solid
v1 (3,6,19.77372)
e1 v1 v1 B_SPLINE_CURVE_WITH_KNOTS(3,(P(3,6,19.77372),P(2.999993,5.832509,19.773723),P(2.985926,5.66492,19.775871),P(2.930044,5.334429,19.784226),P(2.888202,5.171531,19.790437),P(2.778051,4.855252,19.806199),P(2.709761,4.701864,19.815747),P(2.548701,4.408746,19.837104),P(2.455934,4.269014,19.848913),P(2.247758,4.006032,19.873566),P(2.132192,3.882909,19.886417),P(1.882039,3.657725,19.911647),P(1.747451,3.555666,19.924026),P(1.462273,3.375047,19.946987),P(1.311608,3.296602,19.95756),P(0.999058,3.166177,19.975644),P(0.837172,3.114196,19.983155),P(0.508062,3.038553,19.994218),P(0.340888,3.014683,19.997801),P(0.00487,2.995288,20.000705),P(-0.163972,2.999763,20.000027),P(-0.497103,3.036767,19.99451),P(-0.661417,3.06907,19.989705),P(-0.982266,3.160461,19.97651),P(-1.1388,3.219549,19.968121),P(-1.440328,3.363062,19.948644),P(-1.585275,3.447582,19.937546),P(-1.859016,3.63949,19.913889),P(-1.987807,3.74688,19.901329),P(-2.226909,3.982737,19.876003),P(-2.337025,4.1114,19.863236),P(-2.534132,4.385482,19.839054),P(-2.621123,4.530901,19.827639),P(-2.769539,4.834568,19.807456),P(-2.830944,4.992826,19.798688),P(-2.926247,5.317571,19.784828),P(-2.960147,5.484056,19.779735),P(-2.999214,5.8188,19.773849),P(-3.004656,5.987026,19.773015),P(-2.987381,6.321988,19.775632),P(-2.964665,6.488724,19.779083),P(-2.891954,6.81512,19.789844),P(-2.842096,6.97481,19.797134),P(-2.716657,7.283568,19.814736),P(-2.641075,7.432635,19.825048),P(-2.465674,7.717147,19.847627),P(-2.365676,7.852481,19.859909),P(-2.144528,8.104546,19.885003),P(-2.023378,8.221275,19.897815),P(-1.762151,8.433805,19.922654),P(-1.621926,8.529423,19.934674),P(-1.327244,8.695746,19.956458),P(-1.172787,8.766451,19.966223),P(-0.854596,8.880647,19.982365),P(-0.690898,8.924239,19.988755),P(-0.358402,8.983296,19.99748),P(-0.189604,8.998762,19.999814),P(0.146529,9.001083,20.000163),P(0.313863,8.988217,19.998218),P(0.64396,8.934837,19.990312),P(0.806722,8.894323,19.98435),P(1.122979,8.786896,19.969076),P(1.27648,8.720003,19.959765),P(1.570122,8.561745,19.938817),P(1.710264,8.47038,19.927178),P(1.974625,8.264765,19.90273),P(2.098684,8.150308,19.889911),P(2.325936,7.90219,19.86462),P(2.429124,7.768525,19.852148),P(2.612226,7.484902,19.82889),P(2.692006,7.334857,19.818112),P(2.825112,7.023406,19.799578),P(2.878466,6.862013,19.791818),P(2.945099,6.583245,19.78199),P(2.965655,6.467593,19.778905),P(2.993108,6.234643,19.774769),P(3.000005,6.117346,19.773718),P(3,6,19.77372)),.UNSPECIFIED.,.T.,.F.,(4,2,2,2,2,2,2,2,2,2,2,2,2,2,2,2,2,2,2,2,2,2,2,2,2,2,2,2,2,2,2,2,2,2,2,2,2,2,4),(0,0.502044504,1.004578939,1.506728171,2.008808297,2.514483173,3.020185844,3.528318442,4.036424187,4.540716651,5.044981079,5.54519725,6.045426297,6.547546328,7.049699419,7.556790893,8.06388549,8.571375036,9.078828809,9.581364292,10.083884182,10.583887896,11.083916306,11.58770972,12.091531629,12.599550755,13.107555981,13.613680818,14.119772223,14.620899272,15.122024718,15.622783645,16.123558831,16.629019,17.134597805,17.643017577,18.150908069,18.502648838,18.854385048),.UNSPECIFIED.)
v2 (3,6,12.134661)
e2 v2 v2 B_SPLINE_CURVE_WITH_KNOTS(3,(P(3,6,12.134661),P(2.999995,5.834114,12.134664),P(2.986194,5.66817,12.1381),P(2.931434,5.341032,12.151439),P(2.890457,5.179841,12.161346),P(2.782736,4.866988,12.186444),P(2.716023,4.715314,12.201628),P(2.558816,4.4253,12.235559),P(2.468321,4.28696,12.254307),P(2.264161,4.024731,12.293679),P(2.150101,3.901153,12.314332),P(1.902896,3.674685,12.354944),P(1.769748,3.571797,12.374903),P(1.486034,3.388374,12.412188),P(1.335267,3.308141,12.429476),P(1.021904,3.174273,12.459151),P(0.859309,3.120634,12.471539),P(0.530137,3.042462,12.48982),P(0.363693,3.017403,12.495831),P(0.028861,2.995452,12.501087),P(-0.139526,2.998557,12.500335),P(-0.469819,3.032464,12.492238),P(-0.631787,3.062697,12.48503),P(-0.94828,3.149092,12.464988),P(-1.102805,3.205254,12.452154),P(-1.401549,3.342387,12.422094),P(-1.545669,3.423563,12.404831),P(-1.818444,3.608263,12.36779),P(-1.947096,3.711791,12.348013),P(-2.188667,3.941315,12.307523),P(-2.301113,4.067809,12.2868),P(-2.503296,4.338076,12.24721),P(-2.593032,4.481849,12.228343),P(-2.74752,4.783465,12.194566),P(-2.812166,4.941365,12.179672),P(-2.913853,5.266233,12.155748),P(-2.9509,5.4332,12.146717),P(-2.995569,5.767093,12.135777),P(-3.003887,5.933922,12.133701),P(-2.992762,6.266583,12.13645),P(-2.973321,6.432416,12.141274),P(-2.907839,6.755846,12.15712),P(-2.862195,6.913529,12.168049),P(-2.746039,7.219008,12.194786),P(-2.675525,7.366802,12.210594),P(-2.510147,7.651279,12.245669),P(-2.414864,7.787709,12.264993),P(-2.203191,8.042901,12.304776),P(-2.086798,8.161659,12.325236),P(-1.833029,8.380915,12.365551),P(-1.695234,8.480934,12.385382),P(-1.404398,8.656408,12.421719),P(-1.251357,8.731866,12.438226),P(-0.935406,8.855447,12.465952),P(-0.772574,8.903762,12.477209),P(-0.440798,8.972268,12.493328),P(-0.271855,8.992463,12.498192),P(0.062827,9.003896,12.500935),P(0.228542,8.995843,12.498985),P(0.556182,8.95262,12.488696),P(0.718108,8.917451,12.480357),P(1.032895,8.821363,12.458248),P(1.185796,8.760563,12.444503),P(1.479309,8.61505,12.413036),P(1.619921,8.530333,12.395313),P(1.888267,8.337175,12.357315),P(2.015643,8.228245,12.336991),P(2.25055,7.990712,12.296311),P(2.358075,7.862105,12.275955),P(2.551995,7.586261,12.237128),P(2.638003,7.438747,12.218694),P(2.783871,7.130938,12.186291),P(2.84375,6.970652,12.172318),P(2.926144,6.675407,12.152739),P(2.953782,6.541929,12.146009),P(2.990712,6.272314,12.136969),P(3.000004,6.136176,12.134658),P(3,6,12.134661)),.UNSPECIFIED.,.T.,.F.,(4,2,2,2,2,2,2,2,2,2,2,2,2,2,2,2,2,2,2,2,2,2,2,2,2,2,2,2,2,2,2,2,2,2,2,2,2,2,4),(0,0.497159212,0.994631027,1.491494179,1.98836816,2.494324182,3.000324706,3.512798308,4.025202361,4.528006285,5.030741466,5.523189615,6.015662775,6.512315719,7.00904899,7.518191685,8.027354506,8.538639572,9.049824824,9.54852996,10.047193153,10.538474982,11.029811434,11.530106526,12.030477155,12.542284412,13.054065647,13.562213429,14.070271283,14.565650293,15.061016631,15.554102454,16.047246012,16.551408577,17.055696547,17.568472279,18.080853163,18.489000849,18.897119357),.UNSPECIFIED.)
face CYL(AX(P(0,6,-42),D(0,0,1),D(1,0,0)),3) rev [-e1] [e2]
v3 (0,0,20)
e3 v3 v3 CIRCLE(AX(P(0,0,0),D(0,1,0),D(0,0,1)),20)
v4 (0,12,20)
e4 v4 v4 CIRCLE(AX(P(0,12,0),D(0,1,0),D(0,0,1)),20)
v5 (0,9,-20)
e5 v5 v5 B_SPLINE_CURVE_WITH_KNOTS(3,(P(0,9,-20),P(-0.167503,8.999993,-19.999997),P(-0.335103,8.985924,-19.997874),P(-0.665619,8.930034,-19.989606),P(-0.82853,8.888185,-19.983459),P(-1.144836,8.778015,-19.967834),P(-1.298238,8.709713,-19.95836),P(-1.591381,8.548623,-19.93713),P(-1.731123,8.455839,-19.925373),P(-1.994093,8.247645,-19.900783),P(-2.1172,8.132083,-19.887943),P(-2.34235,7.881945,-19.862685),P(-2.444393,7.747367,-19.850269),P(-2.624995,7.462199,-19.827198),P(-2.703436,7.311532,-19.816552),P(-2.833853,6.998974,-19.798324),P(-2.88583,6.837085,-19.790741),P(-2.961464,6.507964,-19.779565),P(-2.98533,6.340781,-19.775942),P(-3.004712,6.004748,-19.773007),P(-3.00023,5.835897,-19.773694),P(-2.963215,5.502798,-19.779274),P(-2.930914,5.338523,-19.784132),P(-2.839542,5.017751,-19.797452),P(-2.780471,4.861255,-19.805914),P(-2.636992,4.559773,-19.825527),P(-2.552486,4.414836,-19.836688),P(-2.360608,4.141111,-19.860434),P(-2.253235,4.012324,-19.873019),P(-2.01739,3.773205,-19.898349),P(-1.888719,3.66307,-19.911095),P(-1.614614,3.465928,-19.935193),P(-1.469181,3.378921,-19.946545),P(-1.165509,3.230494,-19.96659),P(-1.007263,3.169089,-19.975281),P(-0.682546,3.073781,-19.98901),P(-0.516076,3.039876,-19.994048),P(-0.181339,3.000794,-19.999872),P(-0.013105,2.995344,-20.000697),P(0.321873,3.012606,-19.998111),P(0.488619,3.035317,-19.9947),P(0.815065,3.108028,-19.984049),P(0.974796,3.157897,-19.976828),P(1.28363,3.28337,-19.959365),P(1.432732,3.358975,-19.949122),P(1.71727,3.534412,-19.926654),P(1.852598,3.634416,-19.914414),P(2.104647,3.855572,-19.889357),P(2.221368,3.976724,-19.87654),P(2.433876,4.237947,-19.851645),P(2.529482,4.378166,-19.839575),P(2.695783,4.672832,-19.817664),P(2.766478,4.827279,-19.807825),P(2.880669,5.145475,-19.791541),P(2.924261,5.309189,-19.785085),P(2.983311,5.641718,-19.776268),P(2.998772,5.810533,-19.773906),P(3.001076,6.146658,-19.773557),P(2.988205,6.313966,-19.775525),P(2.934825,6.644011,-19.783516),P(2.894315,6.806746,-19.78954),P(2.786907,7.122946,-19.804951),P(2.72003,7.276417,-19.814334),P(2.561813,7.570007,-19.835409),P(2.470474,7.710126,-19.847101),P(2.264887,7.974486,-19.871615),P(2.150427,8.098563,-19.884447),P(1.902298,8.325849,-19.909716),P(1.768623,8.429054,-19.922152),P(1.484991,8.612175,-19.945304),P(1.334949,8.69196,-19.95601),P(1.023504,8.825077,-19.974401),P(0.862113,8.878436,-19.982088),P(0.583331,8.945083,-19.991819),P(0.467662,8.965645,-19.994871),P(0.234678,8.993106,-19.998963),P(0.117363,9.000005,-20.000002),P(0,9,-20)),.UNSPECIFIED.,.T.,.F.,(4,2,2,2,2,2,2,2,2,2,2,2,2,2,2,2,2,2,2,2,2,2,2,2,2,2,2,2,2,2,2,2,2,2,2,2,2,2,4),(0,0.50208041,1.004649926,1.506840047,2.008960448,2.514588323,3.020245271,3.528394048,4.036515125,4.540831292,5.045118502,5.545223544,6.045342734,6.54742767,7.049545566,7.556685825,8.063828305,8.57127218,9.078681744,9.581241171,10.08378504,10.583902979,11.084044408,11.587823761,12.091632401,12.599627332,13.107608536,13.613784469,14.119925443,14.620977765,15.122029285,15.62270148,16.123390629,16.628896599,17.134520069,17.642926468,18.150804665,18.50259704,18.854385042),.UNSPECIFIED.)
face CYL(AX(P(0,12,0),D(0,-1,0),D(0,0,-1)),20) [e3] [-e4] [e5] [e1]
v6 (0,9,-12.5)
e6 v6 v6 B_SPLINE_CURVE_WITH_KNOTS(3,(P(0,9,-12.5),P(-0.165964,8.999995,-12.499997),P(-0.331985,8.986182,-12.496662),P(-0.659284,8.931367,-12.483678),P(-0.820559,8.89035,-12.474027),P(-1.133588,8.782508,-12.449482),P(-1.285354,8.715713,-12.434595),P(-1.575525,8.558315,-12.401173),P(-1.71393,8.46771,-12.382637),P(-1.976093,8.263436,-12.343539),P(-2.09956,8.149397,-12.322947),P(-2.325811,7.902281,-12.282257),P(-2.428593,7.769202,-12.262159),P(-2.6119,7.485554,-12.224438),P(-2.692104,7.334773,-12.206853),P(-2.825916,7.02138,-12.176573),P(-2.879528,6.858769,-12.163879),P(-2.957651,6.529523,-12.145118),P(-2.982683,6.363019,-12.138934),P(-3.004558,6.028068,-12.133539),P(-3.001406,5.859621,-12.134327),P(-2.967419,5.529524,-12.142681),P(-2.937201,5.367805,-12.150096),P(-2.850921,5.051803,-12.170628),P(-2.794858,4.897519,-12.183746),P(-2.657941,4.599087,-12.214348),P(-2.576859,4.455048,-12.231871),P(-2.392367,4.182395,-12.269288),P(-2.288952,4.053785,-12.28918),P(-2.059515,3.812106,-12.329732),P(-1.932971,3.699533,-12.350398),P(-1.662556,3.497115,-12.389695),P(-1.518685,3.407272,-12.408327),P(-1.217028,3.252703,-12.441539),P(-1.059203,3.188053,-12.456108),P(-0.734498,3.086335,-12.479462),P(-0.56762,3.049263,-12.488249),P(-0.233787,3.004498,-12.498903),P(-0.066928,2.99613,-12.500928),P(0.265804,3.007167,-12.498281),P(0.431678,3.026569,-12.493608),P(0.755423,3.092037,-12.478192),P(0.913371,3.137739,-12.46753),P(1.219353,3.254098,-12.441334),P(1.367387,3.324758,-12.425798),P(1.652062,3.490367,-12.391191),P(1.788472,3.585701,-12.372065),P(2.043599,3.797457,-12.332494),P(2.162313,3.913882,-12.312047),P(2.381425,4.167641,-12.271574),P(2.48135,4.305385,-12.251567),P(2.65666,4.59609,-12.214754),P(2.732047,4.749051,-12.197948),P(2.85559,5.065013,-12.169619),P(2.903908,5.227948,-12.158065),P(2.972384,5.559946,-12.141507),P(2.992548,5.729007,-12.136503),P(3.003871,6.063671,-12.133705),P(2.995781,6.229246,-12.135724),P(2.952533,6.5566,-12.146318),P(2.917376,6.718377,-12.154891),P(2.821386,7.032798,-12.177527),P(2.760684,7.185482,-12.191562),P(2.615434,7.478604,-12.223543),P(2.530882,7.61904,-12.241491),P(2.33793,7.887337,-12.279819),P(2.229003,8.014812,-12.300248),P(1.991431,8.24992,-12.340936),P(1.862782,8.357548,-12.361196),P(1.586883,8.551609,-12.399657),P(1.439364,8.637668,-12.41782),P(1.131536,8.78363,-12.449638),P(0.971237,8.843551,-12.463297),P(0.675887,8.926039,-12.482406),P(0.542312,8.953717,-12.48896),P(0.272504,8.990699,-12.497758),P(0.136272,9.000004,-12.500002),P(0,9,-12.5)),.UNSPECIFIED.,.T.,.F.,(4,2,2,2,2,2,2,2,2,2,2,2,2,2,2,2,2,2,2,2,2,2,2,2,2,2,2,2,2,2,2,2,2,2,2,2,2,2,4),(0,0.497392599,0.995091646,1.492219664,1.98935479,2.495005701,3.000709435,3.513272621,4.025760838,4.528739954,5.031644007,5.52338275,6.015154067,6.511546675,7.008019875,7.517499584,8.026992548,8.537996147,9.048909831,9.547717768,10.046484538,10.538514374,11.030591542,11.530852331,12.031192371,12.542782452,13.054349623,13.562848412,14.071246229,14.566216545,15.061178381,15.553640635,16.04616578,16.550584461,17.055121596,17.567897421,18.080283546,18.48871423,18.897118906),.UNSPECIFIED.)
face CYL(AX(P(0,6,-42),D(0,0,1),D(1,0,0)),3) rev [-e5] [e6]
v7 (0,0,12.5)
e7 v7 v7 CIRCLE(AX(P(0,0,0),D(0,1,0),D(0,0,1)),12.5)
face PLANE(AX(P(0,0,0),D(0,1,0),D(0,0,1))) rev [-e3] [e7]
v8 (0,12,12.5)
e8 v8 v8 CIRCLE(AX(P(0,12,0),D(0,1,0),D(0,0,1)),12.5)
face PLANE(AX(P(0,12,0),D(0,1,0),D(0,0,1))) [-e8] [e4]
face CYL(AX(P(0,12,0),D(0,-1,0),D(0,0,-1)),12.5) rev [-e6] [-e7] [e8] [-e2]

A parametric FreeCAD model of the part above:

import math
import FreeCAD as App
import Part
import Sketcher

doc = App.newDocument("Part")
body = doc.addObject("PartDesign::Body", "Body")

# Sketch on XZ plane
sketch1 = doc.addObject("Sketcher::SketchObject", "Sketch")
body.addObject(sketch1)
sketch1.AttachmentSupport = (doc.XZ_Plane, [""])
sketch1.MapMode = "FlatFace"
sketch1.addGeometry([
    Part.Circle(App.Vector(0, 0, 0), App.Vector(0, 0, 1), 20),
    Part.Circle(App.Vector(0, 0, 0), App.Vector(0, 0, 1), 12.5),
], False)
sketch1.addConstraint([
    Sketcher.Constraint("Coincident", 0, 3, -1, 1),
    Sketcher.Constraint("Coincident", 1, 3, -1, 1),
    Sketcher.Constraint("Diameter", 0, 40.0),
    Sketcher.Constraint("Diameter", 1, 25.0),
])
pad1 = doc.addObject("PartDesign::Pad", "Pad")
body.addObject(pad1)
pad1.Profile = sketch1
pad1.Length = 12
pad1.Reversed = True

# Sketch on XY plane
sketch2 = doc.addObject("Sketcher::SketchObject", "Sketch001")
body.addObject(sketch2)
sketch2.AttachmentSupport = (doc.XY_Plane, [""])
sketch2.MapMode = "FlatFace"
sketch2.AttachmentOffset = App.Placement(App.Vector(0, 0, 20), App.Rotation())
sketch2.addGeometry([
    Part.ArcOfCircle(Part.Circle(App.Vector(0, 6, 0), App.Vector(0, 0, 1), 3), math.radians(90), math.radians(270)),
    Part.ArcOfCircle(Part.Circle(App.Vector(0, 6, 0), App.Vector(0, 0, 1), 3), math.radians(-90), math.radians(0)),
    Part.ArcOfCircle(Part.Circle(App.Vector(0, 6, 0), App.Vector(0, 0, 1), 3), math.radians(0), math.radians(90)),
], False)
sketch2.addConstraint([
    Sketcher.Constraint("Tangent", 0, 2, 1, 1),
    Sketcher.Constraint("Tangent", 1, 2, 2, 1),
    Sketcher.Constraint("Tangent", 2, 2, 0, 1),
    Sketcher.Constraint("PointOnObject", 0, 3, -2),
    Sketcher.Constraint("PointOnObject", 0, 2, -2),
    Sketcher.Constraint("PointOnObject", 2, 2, -2),
    Sketcher.Constraint("Horizontal", 2, 3, 1, 2),
    Sketcher.Constraint("Radius", 0, 3.0),
    Sketcher.Constraint("DistanceY", -1, 1, 0, 3, 6.0),
])
pocket1 = doc.addObject("PartDesign::Pocket", "Pocket")
body.addObject(pocket1)
pocket1.Profile = sketch2
pocket1.Length = 62

doc.recompute()
